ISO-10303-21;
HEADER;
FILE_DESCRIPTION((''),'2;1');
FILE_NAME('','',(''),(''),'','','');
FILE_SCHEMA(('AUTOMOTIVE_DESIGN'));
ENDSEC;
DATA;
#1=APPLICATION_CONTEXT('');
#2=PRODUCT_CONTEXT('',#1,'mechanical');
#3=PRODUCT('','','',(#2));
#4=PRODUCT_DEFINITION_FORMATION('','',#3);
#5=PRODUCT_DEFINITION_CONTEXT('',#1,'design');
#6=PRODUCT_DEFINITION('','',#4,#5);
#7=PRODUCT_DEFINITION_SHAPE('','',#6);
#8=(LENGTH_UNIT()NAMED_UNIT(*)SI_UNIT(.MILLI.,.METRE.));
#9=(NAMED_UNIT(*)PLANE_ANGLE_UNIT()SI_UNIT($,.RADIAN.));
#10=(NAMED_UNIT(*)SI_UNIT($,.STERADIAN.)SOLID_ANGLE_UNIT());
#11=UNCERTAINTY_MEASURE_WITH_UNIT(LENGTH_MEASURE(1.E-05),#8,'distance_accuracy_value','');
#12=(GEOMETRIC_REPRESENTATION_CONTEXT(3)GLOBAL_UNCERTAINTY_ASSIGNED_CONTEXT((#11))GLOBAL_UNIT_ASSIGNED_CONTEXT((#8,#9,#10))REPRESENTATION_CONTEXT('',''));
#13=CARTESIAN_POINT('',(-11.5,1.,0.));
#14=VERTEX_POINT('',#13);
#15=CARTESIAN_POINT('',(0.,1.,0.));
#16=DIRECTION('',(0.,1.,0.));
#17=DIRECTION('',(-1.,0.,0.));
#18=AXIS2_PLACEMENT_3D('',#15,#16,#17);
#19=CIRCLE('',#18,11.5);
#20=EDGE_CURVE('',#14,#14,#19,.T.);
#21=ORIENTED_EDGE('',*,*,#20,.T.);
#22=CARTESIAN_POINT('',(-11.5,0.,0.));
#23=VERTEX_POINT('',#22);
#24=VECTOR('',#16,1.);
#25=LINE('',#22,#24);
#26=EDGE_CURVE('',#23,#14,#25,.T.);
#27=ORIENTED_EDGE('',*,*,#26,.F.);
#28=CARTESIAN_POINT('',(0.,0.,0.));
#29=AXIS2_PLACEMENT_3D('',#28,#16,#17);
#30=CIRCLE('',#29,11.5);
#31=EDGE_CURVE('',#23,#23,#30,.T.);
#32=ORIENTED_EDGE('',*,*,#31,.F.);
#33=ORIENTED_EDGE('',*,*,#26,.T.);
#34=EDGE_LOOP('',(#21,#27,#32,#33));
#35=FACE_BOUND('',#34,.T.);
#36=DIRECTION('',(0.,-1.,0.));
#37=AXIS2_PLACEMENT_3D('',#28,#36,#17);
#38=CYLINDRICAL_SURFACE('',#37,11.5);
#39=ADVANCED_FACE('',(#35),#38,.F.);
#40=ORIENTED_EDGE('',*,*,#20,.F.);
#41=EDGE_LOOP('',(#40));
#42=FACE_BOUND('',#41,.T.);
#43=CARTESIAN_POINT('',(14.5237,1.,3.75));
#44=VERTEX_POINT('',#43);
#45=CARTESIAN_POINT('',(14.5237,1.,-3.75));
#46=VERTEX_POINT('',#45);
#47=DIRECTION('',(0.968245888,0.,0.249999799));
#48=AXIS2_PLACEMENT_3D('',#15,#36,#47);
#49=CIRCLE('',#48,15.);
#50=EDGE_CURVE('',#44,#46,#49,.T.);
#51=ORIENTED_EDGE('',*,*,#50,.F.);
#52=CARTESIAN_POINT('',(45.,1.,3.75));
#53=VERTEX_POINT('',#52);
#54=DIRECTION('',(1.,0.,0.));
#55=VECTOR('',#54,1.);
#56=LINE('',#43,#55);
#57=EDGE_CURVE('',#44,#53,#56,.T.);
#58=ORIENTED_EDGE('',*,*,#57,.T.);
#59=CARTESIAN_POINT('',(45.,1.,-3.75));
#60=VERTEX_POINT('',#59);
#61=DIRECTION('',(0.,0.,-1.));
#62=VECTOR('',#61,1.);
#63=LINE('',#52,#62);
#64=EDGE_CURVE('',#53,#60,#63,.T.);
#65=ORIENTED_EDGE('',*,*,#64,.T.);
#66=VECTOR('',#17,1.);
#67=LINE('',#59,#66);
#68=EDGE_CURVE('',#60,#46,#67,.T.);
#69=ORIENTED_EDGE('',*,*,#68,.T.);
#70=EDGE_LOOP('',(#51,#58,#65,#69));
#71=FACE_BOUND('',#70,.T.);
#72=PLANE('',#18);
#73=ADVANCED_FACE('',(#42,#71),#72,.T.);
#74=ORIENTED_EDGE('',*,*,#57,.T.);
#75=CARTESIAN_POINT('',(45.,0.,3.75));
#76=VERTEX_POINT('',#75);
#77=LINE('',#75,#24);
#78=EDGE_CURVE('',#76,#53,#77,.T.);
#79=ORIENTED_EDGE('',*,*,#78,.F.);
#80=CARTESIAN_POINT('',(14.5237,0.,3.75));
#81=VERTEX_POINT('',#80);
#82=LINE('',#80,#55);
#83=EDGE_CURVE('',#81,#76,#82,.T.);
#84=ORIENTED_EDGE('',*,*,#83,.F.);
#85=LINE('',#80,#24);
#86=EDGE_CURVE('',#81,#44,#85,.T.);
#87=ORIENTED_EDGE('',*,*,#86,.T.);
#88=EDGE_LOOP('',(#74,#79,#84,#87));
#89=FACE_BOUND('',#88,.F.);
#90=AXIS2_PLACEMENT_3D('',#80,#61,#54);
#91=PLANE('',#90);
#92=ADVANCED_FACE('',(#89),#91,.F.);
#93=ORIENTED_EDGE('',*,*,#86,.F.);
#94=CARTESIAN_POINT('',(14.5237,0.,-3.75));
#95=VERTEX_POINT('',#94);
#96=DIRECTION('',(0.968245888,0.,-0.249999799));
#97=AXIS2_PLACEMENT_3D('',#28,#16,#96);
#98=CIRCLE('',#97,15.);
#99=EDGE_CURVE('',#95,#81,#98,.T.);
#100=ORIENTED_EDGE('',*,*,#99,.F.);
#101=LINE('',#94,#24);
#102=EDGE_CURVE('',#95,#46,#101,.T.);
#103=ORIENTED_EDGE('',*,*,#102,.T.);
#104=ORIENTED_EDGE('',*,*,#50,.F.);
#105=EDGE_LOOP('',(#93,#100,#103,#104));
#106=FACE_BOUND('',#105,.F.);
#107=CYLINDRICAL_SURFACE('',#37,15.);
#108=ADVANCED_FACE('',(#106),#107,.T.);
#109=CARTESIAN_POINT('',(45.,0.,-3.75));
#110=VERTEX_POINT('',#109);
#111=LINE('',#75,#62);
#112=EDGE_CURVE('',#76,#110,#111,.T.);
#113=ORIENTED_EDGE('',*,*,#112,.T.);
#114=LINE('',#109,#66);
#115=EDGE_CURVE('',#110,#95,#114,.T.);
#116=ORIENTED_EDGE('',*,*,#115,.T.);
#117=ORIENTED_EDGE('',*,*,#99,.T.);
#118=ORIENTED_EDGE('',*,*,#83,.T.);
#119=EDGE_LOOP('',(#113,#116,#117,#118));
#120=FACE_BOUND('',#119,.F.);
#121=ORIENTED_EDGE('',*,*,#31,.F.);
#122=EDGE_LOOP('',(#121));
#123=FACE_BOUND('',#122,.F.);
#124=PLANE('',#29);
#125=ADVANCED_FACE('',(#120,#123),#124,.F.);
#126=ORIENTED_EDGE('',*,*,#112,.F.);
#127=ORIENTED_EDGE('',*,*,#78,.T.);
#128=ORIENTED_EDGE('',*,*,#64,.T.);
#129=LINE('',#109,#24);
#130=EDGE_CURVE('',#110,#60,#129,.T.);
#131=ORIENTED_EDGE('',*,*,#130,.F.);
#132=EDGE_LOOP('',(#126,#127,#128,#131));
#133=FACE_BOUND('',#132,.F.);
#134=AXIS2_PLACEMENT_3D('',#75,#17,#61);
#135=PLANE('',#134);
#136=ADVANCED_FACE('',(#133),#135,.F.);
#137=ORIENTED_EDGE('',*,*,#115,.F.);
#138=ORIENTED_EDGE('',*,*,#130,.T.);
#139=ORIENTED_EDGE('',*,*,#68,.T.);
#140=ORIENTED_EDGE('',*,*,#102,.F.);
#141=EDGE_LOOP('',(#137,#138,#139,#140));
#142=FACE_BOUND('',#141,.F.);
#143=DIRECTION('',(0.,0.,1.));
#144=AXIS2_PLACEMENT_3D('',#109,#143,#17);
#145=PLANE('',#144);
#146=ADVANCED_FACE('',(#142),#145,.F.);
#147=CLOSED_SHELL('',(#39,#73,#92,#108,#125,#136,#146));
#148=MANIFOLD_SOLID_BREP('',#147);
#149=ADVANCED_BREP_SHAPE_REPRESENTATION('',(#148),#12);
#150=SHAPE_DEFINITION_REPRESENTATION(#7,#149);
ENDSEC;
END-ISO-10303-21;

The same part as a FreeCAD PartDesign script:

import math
import FreeCAD as App
import Part
import Sketcher

doc = App.newDocument("Part")
body = doc.addObject("PartDesign::Body", "Body")

sketch1 = body.newObject("Sketcher::SketchObject", "Sketch")
sketch1.AttachmentSupport = (doc.getObject("XZ_Plane"), [""])
sketch1.MapMode = "FlatFace"
sketch1.addGeometry([
    Part.ArcOfCircle(Part.Circle(App.Vector(0, 0, 0), App.Vector(0, 0, 1), 15), math.radians(14.4775), math.radians(345.5225)),
    Part.LineSegment(App.Vector(14.5237, 3.75, 0), App.Vector(45, 3.75, 0)),
    Part.LineSegment(App.Vector(45, 3.75, 0), App.Vector(45, -3.75, 0)),
    Part.LineSegment(App.Vector(45, -3.75, 0), App.Vector(14.5237, -3.75, 0)),
    Part.Circle(App.Vector(0, 0, 0), App.Vector(0, 0, 1), 11.5),
], False)
sketch1.addConstraint([
    Sketcher.Constraint("Coincident", 0, 1, 1, 1),
    Sketcher.Constraint("Coincident", 1, 2, 2, 1),
    Sketcher.Constraint("Coincident", 2, 2, 3, 1),
    Sketcher.Constraint("Coincident", 3, 2, 0, 2),
    Sketcher.Constraint("Horizontal", 1),
    Sketcher.Constraint("Vertical", 2),
    Sketcher.Constraint("Horizontal", 3),
    Sketcher.Constraint("Coincident", 0, 3, -1, 1),
    Sketcher.Constraint("Coincident", 4, 3, -1, 1),
    Sketcher.Constraint("Vertical", 0, 1, 3, 2),
    Sketcher.Constraint("Diameter", 4, 23.0),
    Sketcher.Constraint("Radius", 0, 15.0),
    Sketcher.Constraint("DistanceY", 2, 2, 2, 1, 7.5),
    Sketcher.Constraint("DistanceX", -1, 1, 1, 2, 45.0),
])
pad1 = body.newObject("PartDesign::Pad", "Pad")
pad1.Profile = sketch1
pad1.Length = 1
pad1.Reversed = True

doc.recompute()
